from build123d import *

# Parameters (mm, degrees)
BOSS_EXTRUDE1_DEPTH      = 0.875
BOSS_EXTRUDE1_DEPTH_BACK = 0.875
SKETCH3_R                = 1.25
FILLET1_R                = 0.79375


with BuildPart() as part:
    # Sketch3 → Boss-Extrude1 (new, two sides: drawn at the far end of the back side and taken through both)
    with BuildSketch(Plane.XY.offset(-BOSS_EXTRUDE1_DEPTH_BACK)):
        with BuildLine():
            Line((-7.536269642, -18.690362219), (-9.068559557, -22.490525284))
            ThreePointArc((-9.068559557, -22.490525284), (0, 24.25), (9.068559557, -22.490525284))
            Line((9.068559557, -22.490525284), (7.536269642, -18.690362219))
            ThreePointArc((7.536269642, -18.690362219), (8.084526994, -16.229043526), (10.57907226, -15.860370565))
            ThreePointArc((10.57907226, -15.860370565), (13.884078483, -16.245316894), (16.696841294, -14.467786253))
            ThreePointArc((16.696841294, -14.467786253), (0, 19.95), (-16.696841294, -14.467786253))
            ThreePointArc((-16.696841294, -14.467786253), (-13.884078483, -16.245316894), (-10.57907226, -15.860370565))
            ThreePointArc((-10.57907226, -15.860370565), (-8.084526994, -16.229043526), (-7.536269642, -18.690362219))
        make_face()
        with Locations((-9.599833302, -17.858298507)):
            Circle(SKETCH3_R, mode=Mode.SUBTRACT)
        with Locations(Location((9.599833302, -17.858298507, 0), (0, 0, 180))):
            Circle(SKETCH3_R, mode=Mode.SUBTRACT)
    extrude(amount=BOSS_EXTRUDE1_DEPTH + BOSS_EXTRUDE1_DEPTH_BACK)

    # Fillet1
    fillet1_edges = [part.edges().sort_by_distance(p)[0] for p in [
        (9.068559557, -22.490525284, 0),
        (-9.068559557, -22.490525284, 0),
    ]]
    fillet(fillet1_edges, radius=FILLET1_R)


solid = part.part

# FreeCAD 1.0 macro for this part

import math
import FreeCAD as App
import Part
import Sketcher

V = App.Vector
Q = App.Units.Quantity


def edges_at(feature, points):
    """Names of the edges that pass closest to the given points."""
    edges = feature.Shape.Edges
    near = lambda p: min(range(len(edges)), key=lambda i: edges[i].distToShape(Part.Vertex(*p))[0])
    return sorted({f"Edge{near(p) + 1}" for p in points})

doc = App.newDocument("Part")
body = doc.addObject("PartDesign::Body", "Body")

# Sketch on XY plane
sketch1 = body.newObject("Sketcher::SketchObject", "Sketch")
sketch1.AttachmentSupport = (doc.getObject("XY_Plane"), [""])
sketch1.MapMode = "FlatFace"
sketch1.addGeometry(Part.LineSegment(V(-9.06856, -22.490525, 0), V(-7.53627, -18.690362, 0)), False)
sketch1.addGeometry(Part.ArcOfCircle(Part.Circle(V(-9.599833, -17.858299, 0), V(0, 0, 1), 2.225), math.radians(-21.960124), math.radians(116.110734)), False)
sketch1.addGeometry(Part.ArcOfCircle(Part.Circle(V(-12.776093, -11.377819, 0), V(0, 0, 1), 4.99201), math.radians(-141.758131), math.radians(-63.889266)), False)
sketch1.addGeometry(Part.ArcOfCircle(Part.Circle(V(0, -1.3089, 0), V(0, 0, 1), 21.2589), math.radians(-38.241869), math.radians(218.241869)), False)
sketch1.addGeometry(Part.ArcOfCircle(Part.Circle(V(12.776093, -11.377819, 0), V(0, 0, 1), 4.99201), math.radians(-116.110734), math.radians(-38.241869)), False)
sketch1.addGeometry(Part.ArcOfCircle(Part.Circle(V(9.599833, -17.858299, 0), V(0, 0, 1), 2.225), math.radians(63.889266), math.radians(201.960124)), False)
sketch1.addGeometry(Part.LineSegment(V(7.53627, -18.690362, 0), V(9.06856, -22.490525, 0)), False)
sketch1.addGeometry(Part.ArcOfCircle(Part.Circle(V(0, 0, 0), V(0, 0, 1), 24.25), math.radians(-68.039876), math.radians(248.039876)), False)
sketch1.addGeometry(Part.Circle(V(9.599833, -17.858299, 0), V(0, 0, 1), 1.25), False)
sketch1.addGeometry(Part.Circle(V(-9.599833, -17.858299, 0), V(0, 0, 1), 1.25), False)
sketch1.addConstraint(Sketcher.Constraint("Tangent", 0, 2, 1, 1))
sketch1.addConstraint(Sketcher.Constraint("Tangent", 1, 2, 2, 2))
sketch1.addConstraint(Sketcher.Constraint("Tangent", 2, 1, 3, 2))
sketch1.addConstraint(Sketcher.Constraint("Tangent", 3, 1, 4, 2))
sketch1.addConstraint(Sketcher.Constraint("Tangent", 4, 1, 5, 1))
sketch1.addConstraint(Sketcher.Constraint("Tangent", 5, 2, 6, 1))
sketch1.addConstraint(Sketcher.Constraint("Coincident", 6, 2, 7, 1))
sketch1.addConstraint(Sketcher.Constraint("Coincident", 7, 2, 0, 1))
sketch1.addConstraint(Sketcher.Constraint("Coincident", 7, 3, -1, 1))
sketch1.addConstraint(Sketcher.Constraint("Coincident", 8, 3, 5, 3))
sketch1.addConstraint(Sketcher.Constraint("Coincident", 9, 3, 1, 3))
sketch1.addConstraint(Sketcher.Constraint("Equal", 2, 4))
sketch1.addConstraint(Sketcher.Constraint("Equal", 1, 5))
sketch1.addConstraint(Sketcher.Constraint("Equal", 8, 9))
sketch1.addConstraint(Sketcher.Constraint("Symmetric", 2, 3, 4, 3, -2))
sketch1.addConstraint(Sketcher.Constraint("Symmetric", 0, 2, 5, 2, -2))
sketch1.addConstraint(Sketcher.Constraint("Diameter", 8, Q("2.5 mm")))
sketch1.addConstraint(Sketcher.Constraint("Radius", 7, Q("24.25 mm")))
sketch1.addConstraint(Sketcher.Constraint("Radius", 1, Q("2.225 mm")))
sketch1.addConstraint(Sketcher.Constraint("Radius", 3, Q("21.2589 mm")))
sketch1.addConstraint(Sketcher.Constraint("Radius", 2, Q("4.99201 mm")))
sketch1.addConstraint(Sketcher.Constraint("DistanceY", 1, 3, -1, 1, Q("17.858299 mm")))
sketch1.addConstraint(Sketcher.Constraint("DistanceY", 3, 3, -1, 1, Q("1.3089 mm")))
sketch1.addConstraint(Sketcher.Constraint("DistanceY", 2, 3, -1, 1, Q("11.377819 mm")))
sketch1.addConstraint(Sketcher.Constraint("DistanceX", 0, 2, -1, 1, Q("7.53627 mm")))
pad1 = body.newObject("PartDesign::Pad", "Pad")
pad1.Profile = sketch1
pad1.Type = "TwoLengths"
pad1.Length = 0.875
pad1.Length2 = 0.875
doc.recompute()

fillet = body.newObject("PartDesign::Fillet", "Fillet")
fillet.Base = (pad1, edges_at(pad1, [(9.069, -22.491, 0), (-9.069, -22.491, 0)]))
fillet.Radius = 0.79375

doc.recompute()
